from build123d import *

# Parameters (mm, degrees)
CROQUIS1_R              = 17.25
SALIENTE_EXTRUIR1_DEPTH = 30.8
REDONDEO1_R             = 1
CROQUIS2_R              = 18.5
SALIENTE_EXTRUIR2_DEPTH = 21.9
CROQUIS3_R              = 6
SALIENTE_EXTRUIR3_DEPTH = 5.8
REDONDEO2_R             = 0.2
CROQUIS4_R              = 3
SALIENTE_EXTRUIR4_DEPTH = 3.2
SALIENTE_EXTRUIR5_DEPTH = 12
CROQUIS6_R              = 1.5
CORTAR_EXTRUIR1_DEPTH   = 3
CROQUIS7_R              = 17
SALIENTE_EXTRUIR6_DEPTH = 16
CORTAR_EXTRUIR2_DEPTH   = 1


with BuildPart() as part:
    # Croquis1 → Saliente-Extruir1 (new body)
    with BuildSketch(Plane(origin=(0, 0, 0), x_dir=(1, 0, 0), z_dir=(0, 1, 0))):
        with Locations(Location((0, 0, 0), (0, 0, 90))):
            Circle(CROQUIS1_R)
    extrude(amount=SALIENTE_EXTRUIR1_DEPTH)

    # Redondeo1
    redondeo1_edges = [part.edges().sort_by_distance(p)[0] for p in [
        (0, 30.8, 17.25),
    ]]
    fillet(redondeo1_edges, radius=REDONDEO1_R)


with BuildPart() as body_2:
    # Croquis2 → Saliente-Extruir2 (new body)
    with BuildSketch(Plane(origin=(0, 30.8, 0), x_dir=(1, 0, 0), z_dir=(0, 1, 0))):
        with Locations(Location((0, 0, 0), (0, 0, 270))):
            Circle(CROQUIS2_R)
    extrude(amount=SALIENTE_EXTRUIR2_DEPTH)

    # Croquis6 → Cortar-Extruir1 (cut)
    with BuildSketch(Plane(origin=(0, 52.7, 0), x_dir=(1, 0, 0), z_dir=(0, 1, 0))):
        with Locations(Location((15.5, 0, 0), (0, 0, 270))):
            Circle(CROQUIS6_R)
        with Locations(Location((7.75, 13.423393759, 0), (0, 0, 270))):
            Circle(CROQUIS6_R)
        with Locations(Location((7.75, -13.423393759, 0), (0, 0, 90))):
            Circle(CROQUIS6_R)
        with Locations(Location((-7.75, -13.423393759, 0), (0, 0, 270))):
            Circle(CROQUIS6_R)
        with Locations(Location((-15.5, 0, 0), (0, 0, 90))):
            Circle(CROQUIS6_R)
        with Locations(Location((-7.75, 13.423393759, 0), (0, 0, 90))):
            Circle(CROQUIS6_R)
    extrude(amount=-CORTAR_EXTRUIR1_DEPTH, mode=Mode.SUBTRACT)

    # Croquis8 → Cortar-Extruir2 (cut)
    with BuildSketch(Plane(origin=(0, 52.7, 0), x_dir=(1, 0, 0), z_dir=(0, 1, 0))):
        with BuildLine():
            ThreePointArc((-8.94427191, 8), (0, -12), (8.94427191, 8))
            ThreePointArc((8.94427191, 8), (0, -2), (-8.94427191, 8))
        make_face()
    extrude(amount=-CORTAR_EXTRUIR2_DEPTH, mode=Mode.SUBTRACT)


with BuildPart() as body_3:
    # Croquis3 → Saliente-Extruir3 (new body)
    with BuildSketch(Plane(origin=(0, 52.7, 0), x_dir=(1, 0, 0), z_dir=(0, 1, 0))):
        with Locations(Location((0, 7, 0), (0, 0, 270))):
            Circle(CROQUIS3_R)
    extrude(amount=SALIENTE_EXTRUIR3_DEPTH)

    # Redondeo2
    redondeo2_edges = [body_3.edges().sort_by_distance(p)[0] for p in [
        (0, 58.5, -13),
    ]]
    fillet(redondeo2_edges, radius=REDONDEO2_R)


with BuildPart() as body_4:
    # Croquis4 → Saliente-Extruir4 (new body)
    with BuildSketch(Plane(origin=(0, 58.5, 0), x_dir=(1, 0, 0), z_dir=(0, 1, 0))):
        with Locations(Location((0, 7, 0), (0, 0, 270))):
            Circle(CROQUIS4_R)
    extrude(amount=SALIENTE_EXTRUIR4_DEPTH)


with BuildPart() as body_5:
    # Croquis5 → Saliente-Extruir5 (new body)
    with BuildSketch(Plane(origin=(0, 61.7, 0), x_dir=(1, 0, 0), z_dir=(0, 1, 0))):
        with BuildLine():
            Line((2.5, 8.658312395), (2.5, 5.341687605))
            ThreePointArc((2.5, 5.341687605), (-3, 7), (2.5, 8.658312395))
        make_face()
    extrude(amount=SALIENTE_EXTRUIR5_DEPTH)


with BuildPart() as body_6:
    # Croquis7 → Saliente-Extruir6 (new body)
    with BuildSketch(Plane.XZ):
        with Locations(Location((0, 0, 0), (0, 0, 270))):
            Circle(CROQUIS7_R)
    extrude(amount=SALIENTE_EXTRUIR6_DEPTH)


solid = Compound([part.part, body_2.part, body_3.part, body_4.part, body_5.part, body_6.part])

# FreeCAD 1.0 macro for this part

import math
import FreeCAD as App
import Part
import Sketcher


def edges_at(feature, points):
    """Names of the edges that pass closest to the given points."""
    edges = feature.Shape.Edges
    near = lambda p: min(range(len(edges)), key=lambda i: edges[i].distToShape(Part.Vertex(*p))[0])
    return sorted({f"Edge{near(p) + 1}" for p in points})

doc = App.newDocument("Part")
params = doc.addObject("Spreadsheet::Sheet", "Params")
for row, (alias, value) in enumerate([
    ("sketch1_diameter", "34.5 mm"),
    ("pad1_length", "30.8 mm"),
    ("fillet_radius", "1 mm"),
    ("sketch2_diameter", "37 mm"),
    ("pad2_length", "21.9 mm"),
    ("sketch3_diameter", "3 mm"),
    ("pocket1_length", "3 mm"),
    ("sketch4_radius", "12 mm"),
    ("sketch4_radius2", "9 mm"),
    ("pocket2_length", "1 mm"),
    ("sketch5_diameter", "12 mm"),
    ("pad3_length", "5.8 mm"),
    ("fillet2_radius", "0.2 mm"),
    ("sketch6_diameter", "6 mm"),
    ("pad4_length", "3.2 mm"),
    ("sketch7_radius", "3 mm"),
    ("pad5_length", "12 mm"),
    ("sketch8_diameter", "34 mm"),
    ("pad6_length", "16 mm"),
], start=1):
    params.set(f"A{row}", alias)
    params.set(f"B{row}", "=" + value)
    params.setAlias(f"B{row}", alias)

body = doc.addObject("PartDesign::Body", "Body")

# Sketch on XZ plane
sketch1 = body.newObject("Sketcher::SketchObject", "Sketch")
sketch1.AttachmentSupport = (doc.getObject("XZ_Plane"), [""])
sketch1.MapMode = "FlatFace"
sketch1.addGeometry(Part.Circle(App.Vector(0, 0, 0), App.Vector(0, 0, 1), 17), False)
sketch1.addConstraint([
    Sketcher.Constraint("Coincident", 0, 3, -1, 1),
    Sketcher.Constraint("Diameter", 0, 34.5),
])
sketch1.setExpression("Constraints[1]", "Params.sketch1_diameter")
pad1 = body.newObject("PartDesign::Pad", "Pad")
pad1.Profile = sketch1
pad1.setExpression("Length", "Params.pad1_length")
pad1.Reversed = True
doc.recompute()

fillet = body.newObject("PartDesign::Fillet", "Fillet")
fillet.Base = (pad1, edges_at(pad1, [(0, 30.8, 17.25)]))
fillet.setExpression("Radius", "Params.fillet_radius")
body2 = doc.addObject("PartDesign::Body", "Body001")

# Sketch on XZ plane
sketch2 = body2.newObject("Sketcher::SketchObject", "Sketch001")
sketch2.AttachmentSupport = (doc.getObject("XZ_Plane001"), [""])
sketch2.MapMode = "FlatFace"
sketch2.AttachmentOffset = App.Placement(App.Vector(0, 0, -30.8), App.Rotation())
sketch2.addGeometry(Part.Circle(App.Vector(0, 0, 0), App.Vector(0, 0, 1), 18), False)
sketch2.addConstraint([
    Sketcher.Constraint("Coincident", 0, 3, -1, 1),
    Sketcher.Constraint("Diameter", 0, 37.0),
])
sketch2.setExpression("Constraints[1]", "Params.sketch2_diameter")
pad2 = body2.newObject("PartDesign::Pad", "Pad001")
pad2.Profile = sketch2
pad2.setExpression("Length", "Params.pad2_length")
pad2.Reversed = True

# Sketch on XZ plane
sketch3 = body2.newObject("Sketcher::SketchObject", "Sketch002")
sketch3.AttachmentSupport = (doc.getObject("XZ_Plane001"), [""])
sketch3.MapMode = "FlatFace"
sketch3.AttachmentOffset = App.Placement(App.Vector(0, 0, -52.7), App.Rotation())
sketch3.addGeometry([
    Part.Circle(App.Vector(15.5, 0, 0), App.Vector(0, 0, 1), 1.5),  # 0
    Part.Circle(App.Vector(7.8, -13.4, 0), App.Vector(0, 0, 1), 1.5),  # 1
    Part.Circle(App.Vector(7.8, 13.4, 0), App.Vector(0, 0, 1), 1.5),  # 2
    Part.Circle(App.Vector(-7.8, 13.4, 0), App.Vector(0, 0, 1), 1.5),  # 3
    Part.Circle(App.Vector(-15.5, 0, 0), App.Vector(0, 0, 1), 1.5),  # 4
    Part.Circle(App.Vector(-7.8, -13.4, 0), App.Vector(0, 0, 1), 1.5),  # 5
], False)
sketch3.addConstraint([
    Sketcher.Constraint("Equal", 0, 1),
    Sketcher.Constraint("Equal", 1, 2),
    Sketcher.Constraint("Equal", 2, 3),
    Sketcher.Constraint("Equal", 3, 4),
    Sketcher.Constraint("Equal", 4, 5),
    Sketcher.Constraint("Symmetric", 1, 3, 3, 3, -1, 1),
    Sketcher.Constraint("Symmetric", 0, 3, 4, 3, -1, 1),
    Sketcher.Constraint("Symmetric", 2, 3, 5, 3, -1, 1),
    Sketcher.Constraint("Symmetric", 2, 3, 3, 3, -2),
    Sketcher.Constraint("PointOnObject", 0, 3, -1),
    Sketcher.Constraint("Diameter", 0, 3.0),
    Sketcher.Constraint("DistanceX", 4, 3, 0, 3, 31.0),
    Sketcher.Constraint("DistanceX", 3, 3, 2, 3, 15.5),
    Sketcher.Constraint("DistanceY", 1, 3, -1, 1, 13.423394),
])
sketch3.setExpression("Constraints[10]", "Params.sketch3_diameter")
pocket1 = body2.newObject("PartDesign::Pocket", "Pocket")
pocket1.Profile = sketch3
pocket1.setExpression("Length", "Params.pocket1_length")
pocket1.Reversed = True

# Sketch on XZ plane
sketch4 = body2.newObject("Sketcher::SketchObject", "Sketch003")
sketch4.AttachmentSupport = (doc.getObject("XZ_Plane001"), [""])
sketch4.MapMode = "FlatFace"
sketch4.AttachmentOffset = App.Placement(App.Vector(0, 0, -52.7), App.Rotation())
sketch4.addGeometry([
    Part.ArcOfCircle(Part.Circle(App.Vector(0, 0, 0), App.Vector(0, 0, 1), 12), math.radians(-42), math.radians(222)),
    Part.ArcOfCircle(Part.Circle(App.Vector(0, -7, 0), App.Vector(0, 0, 1), 9), math.radians(-6), math.radians(186)),
], False)
sketch4.addConstraint([
    Sketcher.Constraint("Coincident", 0, 1, 1, 1),
    Sketcher.Constraint("Coincident", 1, 2, 0, 2),
    Sketcher.Constraint("Coincident", 0, 3, -1, 1),
    Sketcher.Constraint("PointOnObject", 1, 3, -2),
    Sketcher.Constraint("Radius", 0, 12.0),
    Sketcher.Constraint("Radius", 1, 9.0),
    Sketcher.Constraint("DistanceY", 1, 3, -1, 1, 7.0),
])
sketch4.setExpression("Constraints[4]", "Params.sketch4_radius")
sketch4.setExpression("Constraints[5]", "Params.sketch4_radius2")
pocket2 = body2.newObject("PartDesign::Pocket", "Pocket001")
pocket2.Profile = sketch4
pocket2.setExpression("Length", "Params.pocket2_length")
pocket2.Reversed = True
body3 = doc.addObject("PartDesign::Body", "Body002")

# Sketch on XZ plane
sketch5 = body3.newObject("Sketcher::SketchObject", "Sketch004")
sketch5.AttachmentSupport = (doc.getObject("XZ_Plane002"), [""])
sketch5.MapMode = "FlatFace"
sketch5.AttachmentOffset = App.Placement(App.Vector(0, 0, -52.7), App.Rotation())
sketch5.addGeometry(Part.Circle(App.Vector(0, -7, 0), App.Vector(0, 0, 1), 6), False)
sketch5.addConstraint([
    Sketcher.Constraint("PointOnObject", 0, 3, -2),
    Sketcher.Constraint("Diameter", 0, 12.0),
    Sketcher.Constraint("DistanceY", 0, 3, -1, 1, 7.0),
])
sketch5.setExpression("Constraints[1]", "Params.sketch5_diameter")
pad3 = body3.newObject("PartDesign::Pad", "Pad002")
pad3.Profile = sketch5
pad3.setExpression("Length", "Params.pad3_length")
pad3.Reversed = True
doc.recompute()

fillet2 = body3.newObject("PartDesign::Fillet", "Fillet001")
fillet2.Base = (pad3, edges_at(pad3, [(0, 58.5, -13)]))
fillet2.setExpression("Radius", "Params.fillet2_radius")
body4 = doc.addObject("PartDesign::Body", "Body003")

# Sketch on XZ plane
sketch6 = body4.newObject("Sketcher::SketchObject", "Sketch005")
sketch6.AttachmentSupport = (doc.getObject("XZ_Plane003"), [""])
sketch6.MapMode = "FlatFace"
sketch6.AttachmentOffset = App.Placement(App.Vector(0, 0, -58.5), App.Rotation())
sketch6.addGeometry(Part.Circle(App.Vector(0, -7, 0), App.Vector(0, 0, 1), 3), False)
sketch6.addConstraint([
    Sketcher.Constraint("PointOnObject", 0, 3, -2),
    Sketcher.Constraint("Diameter", 0, 6.0),
    Sketcher.Constraint("DistanceY", 0, 3, -1, 1, 7.0),
])
sketch6.setExpression("Constraints[1]", "Params.sketch6_diameter")
pad4 = body4.newObject("PartDesign::Pad", "Pad003")
pad4.Profile = sketch6
pad4.setExpression("Length", "Params.pad4_length")
pad4.Reversed = True
body5 = doc.addObject("PartDesign::Body", "Body004")

# Sketch on XZ plane
sketch7 = body5.newObject("Sketcher::SketchObject", "Sketch006")
sketch7.AttachmentSupport = (doc.getObject("XZ_Plane004"), [""])
sketch7.MapMode = "FlatFace"
sketch7.AttachmentOffset = App.Placement(App.Vector(0, 0, -61.7), App.Rotation())
sketch7.addGeometry([
    Part.LineSegment(App.Vector(2.5, -5.3, 0), App.Vector(2.5, -8.7, 0)),
    Part.ArcOfCircle(Part.Circle(App.Vector(0, -7, 0), App.Vector(0, 0, 1), 3), math.radians(34), math.radians(326)),
], False)
sketch7.addConstraint([
    Sketcher.Constraint("Coincident", 0, 1, 1, 1),
    Sketcher.Constraint("Coincident", 1, 2, 0, 2),
    Sketcher.Constraint("Vertical", 0),
    Sketcher.Constraint("PointOnObject", 1, 3, -2),
    Sketcher.Constraint("Radius", 1, 3.0),
    Sketcher.Constraint("DistanceY", 1, 3, -1, 1, 7.0),
    Sketcher.Constraint("DistanceX", -1, 1, 0, 1, 2.5),
])
sketch7.setExpression("Constraints[4]", "Params.sketch7_radius")
pad5 = body5.newObject("PartDesign::Pad", "Pad004")
pad5.Profile = sketch7
pad5.setExpression("Length", "Params.pad5_length")
pad5.Reversed = True
body6 = doc.addObject("PartDesign::Body", "Body005")

# Sketch on XZ plane
sketch8 = body6.newObject("Sketcher::SketchObject", "Sketch007")
sketch8.AttachmentSupport = (doc.getObject("XZ_Plane005"), [""])
sketch8.MapMode = "FlatFace"
sketch8.addGeometry(Part.Circle(App.Vector(0, 0, 0), App.Vector(0, 0, 1), 17), False)
sketch8.addConstraint([
    Sketcher.Constraint("Coincident", 0, 3, -1, 1),
    Sketcher.Constraint("Diameter", 0, 34.0),
])
sketch8.setExpression("Constraints[1]", "Params.sketch8_diameter")
pad6 = body6.newObject("PartDesign::Pad", "Pad005")
pad6.Profile = sketch8
pad6.setExpression("Length", "Params.pad6_length")

doc.recompute()
